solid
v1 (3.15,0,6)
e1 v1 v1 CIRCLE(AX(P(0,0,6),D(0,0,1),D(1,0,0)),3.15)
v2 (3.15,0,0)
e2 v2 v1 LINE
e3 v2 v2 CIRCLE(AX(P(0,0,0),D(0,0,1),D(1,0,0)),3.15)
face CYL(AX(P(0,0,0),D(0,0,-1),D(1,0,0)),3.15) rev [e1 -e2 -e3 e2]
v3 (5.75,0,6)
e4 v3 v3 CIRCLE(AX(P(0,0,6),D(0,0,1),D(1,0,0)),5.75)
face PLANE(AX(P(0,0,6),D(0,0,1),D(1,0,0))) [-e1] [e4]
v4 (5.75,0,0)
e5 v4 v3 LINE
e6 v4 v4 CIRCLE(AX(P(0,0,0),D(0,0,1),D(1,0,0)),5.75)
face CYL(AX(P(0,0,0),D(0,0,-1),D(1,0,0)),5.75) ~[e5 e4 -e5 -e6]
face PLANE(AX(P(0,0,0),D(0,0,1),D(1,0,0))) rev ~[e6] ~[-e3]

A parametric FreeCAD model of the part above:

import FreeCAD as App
import Part
import Sketcher

doc = App.newDocument("Part")
body = doc.addObject("PartDesign::Body", "Body")

sketch1 = body.newObject("Sketcher::SketchObject", "Sketch")
sketch1.AttachmentSupport = (doc.getObject("XY_Plane"), [""])
sketch1.MapMode = "FlatFace"
sketch1.addGeometry(Part.Circle(App.Vector(0, 0, 0), App.Vector(0, 0, 1), 5.8), False)
sketch1.addGeometry(Part.Circle(App.Vector(0, 0, 0), App.Vector(0, 0, 1), 3.1), False)
sketch1.addConstraint(Sketcher.Constraint("Coincident", 0, 3, -1, 1))
sketch1.addConstraint(Sketcher.Constraint("Coincident", 1, 3, -1, 1))
sketch1.addConstraint(Sketcher.Constraint("Diameter", 0, 11.5))
sketch1.addConstraint(Sketcher.Constraint("Diameter", 1, 6.3))
pad1 = body.newObject("PartDesign::Pad", "Pad")
pad1.Profile = sketch1
pad1.Length = 6

doc.recompute()
